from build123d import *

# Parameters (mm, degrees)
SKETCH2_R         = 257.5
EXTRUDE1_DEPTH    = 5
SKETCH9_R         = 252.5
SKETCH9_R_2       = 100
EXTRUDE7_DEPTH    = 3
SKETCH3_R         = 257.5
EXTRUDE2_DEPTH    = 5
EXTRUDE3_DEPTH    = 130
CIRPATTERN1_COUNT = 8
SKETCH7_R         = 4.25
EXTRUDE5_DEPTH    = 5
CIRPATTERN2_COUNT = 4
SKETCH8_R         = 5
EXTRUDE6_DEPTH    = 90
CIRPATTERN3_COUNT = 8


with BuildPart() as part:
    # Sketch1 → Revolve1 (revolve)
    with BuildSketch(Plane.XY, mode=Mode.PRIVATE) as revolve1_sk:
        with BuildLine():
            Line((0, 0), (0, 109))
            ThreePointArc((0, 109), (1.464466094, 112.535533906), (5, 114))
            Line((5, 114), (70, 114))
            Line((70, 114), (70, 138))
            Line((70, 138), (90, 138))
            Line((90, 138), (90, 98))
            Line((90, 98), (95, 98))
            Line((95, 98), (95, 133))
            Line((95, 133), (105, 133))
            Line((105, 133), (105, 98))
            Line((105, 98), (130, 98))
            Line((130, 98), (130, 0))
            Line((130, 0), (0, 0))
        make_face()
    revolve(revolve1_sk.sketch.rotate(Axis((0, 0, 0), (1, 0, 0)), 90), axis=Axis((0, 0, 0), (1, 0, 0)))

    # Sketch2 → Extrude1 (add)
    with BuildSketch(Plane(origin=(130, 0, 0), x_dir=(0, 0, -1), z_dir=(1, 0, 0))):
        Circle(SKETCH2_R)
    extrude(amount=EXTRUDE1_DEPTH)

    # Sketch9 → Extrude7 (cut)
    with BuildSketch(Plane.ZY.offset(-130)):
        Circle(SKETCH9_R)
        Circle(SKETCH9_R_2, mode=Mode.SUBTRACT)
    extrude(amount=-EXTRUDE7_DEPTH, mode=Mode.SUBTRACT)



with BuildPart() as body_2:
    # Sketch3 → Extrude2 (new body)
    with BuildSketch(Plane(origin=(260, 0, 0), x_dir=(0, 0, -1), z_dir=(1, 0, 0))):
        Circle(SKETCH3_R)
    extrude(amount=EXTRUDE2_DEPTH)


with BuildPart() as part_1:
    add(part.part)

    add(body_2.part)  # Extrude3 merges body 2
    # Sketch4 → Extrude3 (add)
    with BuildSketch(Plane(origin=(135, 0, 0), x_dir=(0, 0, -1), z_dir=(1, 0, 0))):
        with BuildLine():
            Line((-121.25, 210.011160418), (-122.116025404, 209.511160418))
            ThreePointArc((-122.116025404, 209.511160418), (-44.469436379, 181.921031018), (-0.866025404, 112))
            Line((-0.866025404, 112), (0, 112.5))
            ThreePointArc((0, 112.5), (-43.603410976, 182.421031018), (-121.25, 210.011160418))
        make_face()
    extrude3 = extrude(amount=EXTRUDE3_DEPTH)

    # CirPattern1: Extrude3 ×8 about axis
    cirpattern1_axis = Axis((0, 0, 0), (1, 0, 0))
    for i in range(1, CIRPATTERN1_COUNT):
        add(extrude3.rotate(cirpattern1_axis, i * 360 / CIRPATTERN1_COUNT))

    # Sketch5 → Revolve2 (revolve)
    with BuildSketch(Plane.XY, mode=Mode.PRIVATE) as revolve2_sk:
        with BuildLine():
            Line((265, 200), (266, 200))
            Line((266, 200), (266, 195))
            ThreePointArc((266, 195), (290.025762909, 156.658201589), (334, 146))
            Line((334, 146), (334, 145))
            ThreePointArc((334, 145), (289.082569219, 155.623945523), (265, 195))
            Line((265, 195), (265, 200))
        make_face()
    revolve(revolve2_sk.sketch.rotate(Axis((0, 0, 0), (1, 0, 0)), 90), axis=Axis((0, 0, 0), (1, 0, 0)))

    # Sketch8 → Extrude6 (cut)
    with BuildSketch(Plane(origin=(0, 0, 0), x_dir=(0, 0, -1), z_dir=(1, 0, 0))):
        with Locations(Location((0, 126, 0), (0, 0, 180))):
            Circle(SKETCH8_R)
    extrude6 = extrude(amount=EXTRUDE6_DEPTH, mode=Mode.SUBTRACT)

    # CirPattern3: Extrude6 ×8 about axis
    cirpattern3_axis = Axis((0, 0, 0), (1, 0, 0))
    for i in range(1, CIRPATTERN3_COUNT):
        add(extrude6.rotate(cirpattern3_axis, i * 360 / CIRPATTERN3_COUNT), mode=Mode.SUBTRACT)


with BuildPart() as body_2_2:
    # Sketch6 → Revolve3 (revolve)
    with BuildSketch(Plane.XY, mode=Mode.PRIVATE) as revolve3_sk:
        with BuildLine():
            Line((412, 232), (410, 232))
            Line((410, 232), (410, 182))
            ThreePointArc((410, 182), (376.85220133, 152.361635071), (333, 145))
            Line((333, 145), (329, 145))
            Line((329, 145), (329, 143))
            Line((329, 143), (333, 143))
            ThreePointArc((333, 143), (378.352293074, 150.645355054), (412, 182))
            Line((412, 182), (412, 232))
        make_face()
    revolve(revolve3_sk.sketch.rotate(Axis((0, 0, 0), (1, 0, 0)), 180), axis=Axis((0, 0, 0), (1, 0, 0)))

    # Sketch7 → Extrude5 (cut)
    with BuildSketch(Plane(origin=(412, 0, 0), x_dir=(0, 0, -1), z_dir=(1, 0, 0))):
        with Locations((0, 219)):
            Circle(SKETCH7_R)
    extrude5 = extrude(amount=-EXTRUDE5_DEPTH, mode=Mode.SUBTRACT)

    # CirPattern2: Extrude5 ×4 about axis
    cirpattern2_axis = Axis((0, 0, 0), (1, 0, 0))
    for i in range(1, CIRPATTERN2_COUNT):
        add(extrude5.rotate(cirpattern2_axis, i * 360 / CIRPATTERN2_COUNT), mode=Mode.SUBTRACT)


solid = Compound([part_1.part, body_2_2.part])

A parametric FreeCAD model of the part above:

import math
import FreeCAD as App
import Part
import Sketcher
Q = App.Units.Quantity

doc = App.newDocument("Part")
body = doc.addObject("PartDesign::Body", "Body")

# Sketch on XY plane
sketch1 = body.newObject("Sketcher::SketchObject", "Sketch")
sketch1.AttachmentSupport = (doc.getObject("XY_Plane"), [""])
sketch1.MapMode = "FlatFace"
sketch1.addGeometry([
    Part.LineSegment(App.Vector(0, 109, 0), App.Vector(0, 0, 0)),  # 0
    Part.LineSegment(App.Vector(0, 0, 0), App.Vector(130, 0, 0)),  # 1
    Part.LineSegment(App.Vector(130, 0, 0), App.Vector(130, 98, 0)),  # 2
    Part.LineSegment(App.Vector(130, 98, 0), App.Vector(105, 98, 0)),  # 3
    Part.LineSegment(App.Vector(105, 98, 0), App.Vector(105, 133, 0)),  # 4
    Part.LineSegment(App.Vector(105, 133, 0), App.Vector(95, 133, 0)),  # 5
    Part.LineSegment(App.Vector(95, 133, 0), App.Vector(95, 98, 0)),  # 6
    Part.LineSegment(App.Vector(95, 98, 0), App.Vector(90, 98, 0)),  # 7
    Part.LineSegment(App.Vector(90, 98, 0), App.Vector(90, 138, 0)),  # 8
    Part.LineSegment(App.Vector(90, 138, 0), App.Vector(70, 138, 0)),  # 9
    Part.LineSegment(App.Vector(70, 138, 0), App.Vector(70, 114, 0)),  # 10
    Part.LineSegment(App.Vector(70, 114, 0), App.Vector(5, 114, 0)),  # 11
    Part.ArcOfCircle(Part.Circle(App.Vector(5, 109, 0), App.Vector(0, 0, 1), 5), math.radians(90), math.radians(180)),  # 12
], False)
sketch1.addConstraint([
    Sketcher.Constraint("Coincident", 0, 2, 1, 1),
    Sketcher.Constraint("Coincident", 1, 2, 2, 1),
    Sketcher.Constraint("Coincident", 2, 2, 3, 1),
    Sketcher.Constraint("Coincident", 3, 2, 4, 1),
    Sketcher.Constraint("Coincident", 4, 2, 5, 1),
    Sketcher.Constraint("Coincident", 5, 2, 6, 1),
    Sketcher.Constraint("Coincident", 6, 2, 7, 1),
    Sketcher.Constraint("Coincident", 7, 2, 8, 1),
    Sketcher.Constraint("Coincident", 8, 2, 9, 1),
    Sketcher.Constraint("Coincident", 9, 2, 10, 1),
    Sketcher.Constraint("Coincident", 10, 2, 11, 1),
    Sketcher.Constraint("Tangent", 11, 2, 12, 1),
    Sketcher.Constraint("Tangent", 12, 2, 0, 1),
    Sketcher.Constraint("Vertical", 0),
    Sketcher.Constraint("Horizontal", 1),
    Sketcher.Constraint("Vertical", 2),
    Sketcher.Constraint("Horizontal", 3),
    Sketcher.Constraint("Vertical", 4),
    Sketcher.Constraint("Horizontal", 5),
    Sketcher.Constraint("Vertical", 6),
    Sketcher.Constraint("Horizontal", 7),
    Sketcher.Constraint("Vertical", 8),
    Sketcher.Constraint("Horizontal", 9),
    Sketcher.Constraint("Vertical", 10),
    Sketcher.Constraint("Horizontal", 11),
    Sketcher.Constraint("Coincident", 0, 2, -1, 1),
    Sketcher.Constraint("Horizontal", 3, 2, 6, 2),
    Sketcher.Constraint("Radius", 12, 5.0),
    Sketcher.Constraint("DistanceX", 1, 1, 1, 2, 130.0),
    Sketcher.Constraint("DistanceX", 3, 2, 3, 1, 25.0),
    Sketcher.Constraint("DistanceX", 5, 2, 5, 1, 10.0),
    Sketcher.Constraint("DistanceX", 7, 2, 7, 1, 5.0),
    Sketcher.Constraint("DistanceX", 9, 2, 9, 1, 20.0),
    Sketcher.Constraint("DistanceY", 0, 2, 0, 1, 109.0),
    Sketcher.Constraint("DistanceY", 2, 1, 2, 2, 98.0),
    Sketcher.Constraint("DistanceY", 4, 1, 4, 2, 35.0),
    Sketcher.Constraint("DistanceY", 8, 1, 8, 2, 40.0),
])
revolution = body.newObject("PartDesign::Revolution", "Revolution")
revolution.Profile = sketch1
revolution.ReferenceAxis = (sketch1, ["H_Axis"])
revolution.Angle = 360

# Sketch on YZ plane
sketch2 = body.newObject("Sketcher::SketchObject", "Sketch001")
sketch2.AttachmentSupport = (doc.getObject("YZ_Plane"), [""])
sketch2.MapMode = "FlatFace"
sketch2.AttachmentOffset = App.Placement(App.Vector(0, 0, 130), App.Rotation())
sketch2.addGeometry(Part.Circle(App.Vector(0, 0, 0), App.Vector(0, 0, 1), 258), False)
sketch2.addConstraint([
    Sketcher.Constraint("Coincident", 0, 3, -1, 1),
    Sketcher.Constraint("Diameter", 0, 515.0),
])
pad1 = body.newObject("PartDesign::Pad", "Pad")
pad1.Profile = sketch2
pad1.Length = 5

# Sketch on YZ plane
sketch3 = body.newObject("Sketcher::SketchObject", "Sketch002")
sketch3.AttachmentSupport = (doc.getObject("YZ_Plane"), [""])
sketch3.MapMode = "FlatFace"
sketch3.AttachmentOffset = App.Placement(App.Vector(0, 0, 130), App.Rotation())
sketch3.addGeometry([
    Part.Circle(App.Vector(0, 0, 0), App.Vector(0, 0, 1), 252),
    Part.Circle(App.Vector(0, 0, 0), App.Vector(0, 0, 1), 100),
], False)
sketch3.addConstraint([
    Sketcher.Constraint("Coincident", 0, 3, -1, 1),
    Sketcher.Constraint("Coincident", 1, 3, -1, 1),
    Sketcher.Constraint("Diameter", 0, 505.0),
    Sketcher.Constraint("Diameter", 1, 200.0),
])
pocket1 = body.newObject("PartDesign::Pocket", "Pocket")
pocket1.Profile = sketch3
pocket1.Length = 3
pocket1.Reversed = True
body2 = doc.addObject("PartDesign::Body", "Body001")

# Sketch on YZ plane
sketch4 = body2.newObject("Sketcher::SketchObject", "Sketch003")
sketch4.AttachmentSupport = (doc.getObject("YZ_Plane001"), [""])
sketch4.MapMode = "FlatFace"
sketch4.AttachmentOffset = App.Placement(App.Vector(0, 0, 260), App.Rotation())
sketch4.addGeometry(Part.Circle(App.Vector(0, 0, 0), App.Vector(0, 0, 1), 258), False)
sketch4.addConstraint([
    Sketcher.Constraint("Coincident", 0, 3, -1, 1),
    Sketcher.Constraint("Diameter", 0, 515.0),
])
pad2 = body2.newObject("PartDesign::Pad", "Pad001")
pad2.Profile = sketch4
pad2.Length = 5
body.AllowCompound = True
doc.recompute()

boolean = body.newObject("PartDesign::Boolean", "Boolean")
boolean.Type = "Fuse"
boolean.addObjects([body2])

# Sketch on YZ plane
sketch5 = body.newObject("Sketcher::SketchObject", "Sketch004")
sketch5.AttachmentSupport = (doc.getObject("YZ_Plane"), [""])
sketch5.MapMode = "FlatFace"
sketch5.AttachmentOffset = App.Placement(App.Vector(0, 0, 135), App.Rotation())
sketch5.addGeometry([
    Part.LineSegment(App.Vector(210, 121.2, 0), App.Vector(209.5, 122.1, 0)),
    Part.ArcOfCircle(Part.Circle(App.Vector(84.5, 122.8, 0), App.Vector(0, 0, 1), 125), math.radians(-77), math.radians(0)),
    Part.LineSegment(App.Vector(112, 0.9, 0), App.Vector(112.5, 0, 0)),
    Part.ArcOfCircle(Part.Circle(App.Vector(85, 121.9, 0), App.Vector(0, 0, 1), 125), math.radians(-77), math.radians(0)),
], False)
sketch5.addConstraint([
    Sketcher.Constraint("Coincident", 0, 2, 1, 2),
    Sketcher.Constraint("Coincident", 1, 1, 2, 1),
    Sketcher.Constraint("Coincident", 2, 2, 3, 1),
    Sketcher.Constraint("Coincident", 3, 2, 0, 1),
    Sketcher.Constraint("Equal", 1, 3),
    Sketcher.Constraint("PointOnObject", 2, 2, -1),
    Sketcher.Constraint("Parallel", 0, 2),
    Sketcher.Constraint("Equal", 0, 2),
    Sketcher.Constraint("Radius", 1, 125.0),
    Sketcher.Constraint("Angle", 0, Q("120 deg")),
    Sketcher.Constraint("Distance", 0, 1.0),
    Sketcher.Constraint("DistanceX", -1, 1, 1, 1, 112.0),
    Sketcher.Constraint("DistanceY", -1, 1, 3, 2, 121.25),
    Sketcher.Constraint("DistanceY", -1, 1, 3, 3, 121.94043),
])
pad3 = body.newObject("PartDesign::Pad", "Pad002")
pad3.Profile = sketch5
pad3.Length = 130
doc.recompute()

polarpattern = body.newObject("PartDesign::PolarPattern", "PolarPattern")
polarpattern.Originals = [pad3]
polarpattern.Axis = (doc.getObject("X_Axis"), [""])
polarpattern.Angle = 360
polarpattern.Occurrences = 8
body.Tip = polarpattern

# Sketch on XY plane
sketch6 = body.newObject("Sketcher::SketchObject", "Sketch005")
sketch6.AttachmentSupport = (doc.getObject("XY_Plane"), [""])
sketch6.MapMode = "FlatFace"
sketch6.addGeometry([
    Part.LineSegment(App.Vector(266, 200, 0), App.Vector(265, 200, 0)),  # 0
    Part.LineSegment(App.Vector(265, 200, 0), App.Vector(265, 195, 0)),  # 1
    Part.ArcOfCircle(Part.Circle(App.Vector(324.3, 204.2, 0), App.Vector(0, 0, 1), 60), math.radians(-171), math.radians(-81)),  # 2
    Part.LineSegment(App.Vector(334, 145, 0), App.Vector(334, 146, 0)),  # 3
    Part.ArcOfCircle(Part.Circle(App.Vector(325.1, 205.3, 0), App.Vector(0, 0, 1), 60), math.radians(-170), math.radians(-81)),  # 4
    Part.LineSegment(App.Vector(266, 195, 0), App.Vector(266, 200, 0)),  # 5
], False)
sketch6.addConstraint([
    Sketcher.Constraint("Coincident", 0, 2, 1, 1),
    Sketcher.Constraint("Coincident", 1, 2, 2, 1),
    Sketcher.Constraint("Coincident", 2, 2, 3, 1),
    Sketcher.Constraint("Coincident", 3, 2, 4, 2),
    Sketcher.Constraint("Coincident", 4, 1, 5, 1),
    Sketcher.Constraint("Coincident", 5, 2, 0, 1),
    Sketcher.Constraint("Horizontal", 0),
    Sketcher.Constraint("Vertical", 1),
    Sketcher.Constraint("Vertical", 3),
    Sketcher.Constraint("Vertical", 5),
    Sketcher.Constraint("Equal", 2, 4),
    Sketcher.Constraint("Horizontal", 1, 2, 4, 1),
    Sketcher.Constraint("Equal", 0, 3),
    Sketcher.Constraint("Radius", 2, 60.0),
    Sketcher.Constraint("DistanceX", 0, 2, 0, 1, 1.0),
    Sketcher.Constraint("DistanceY", 1, 2, 1, 1, 5.0),
    Sketcher.Constraint("DistanceX", -1, 1, 0, 2, 265.0),
    Sketcher.Constraint("DistanceY", -1, 1, 0, 2, 200.0),
    Sketcher.Constraint("DistanceX", -1, 1, 2, 2, 334.0),
    Sketcher.Constraint("DistanceY", -1, 1, 2, 2, 145.0),
])
revolution2 = body.newObject("PartDesign::Revolution", "Revolution001")
revolution2.Profile = sketch6
revolution2.ReferenceAxis = (sketch6, ["H_Axis"])
revolution2.Angle = 360

# Sketch on YZ plane
sketch7 = body.newObject("Sketcher::SketchObject", "Sketch006")
sketch7.AttachmentSupport = (doc.getObject("YZ_Plane"), [""])
sketch7.MapMode = "FlatFace"
sketch7.addGeometry(Part.Circle(App.Vector(126, 0, 0), App.Vector(0, 0, 1), 5), False)
sketch7.addConstraint([
    Sketcher.Constraint("PointOnObject", 0, 3, -1),
    Sketcher.Constraint("Diameter", 0, 10.0),
    Sketcher.Constraint("DistanceX", -1, 1, 0, 3, 126.0),
])
pocket2 = body.newObject("PartDesign::Pocket", "Pocket001")
pocket2.Profile = sketch7
pocket2.Length = 90
pocket2.Reversed = True
doc.recompute()

polarpattern2 = body.newObject("PartDesign::PolarPattern", "PolarPattern001")
polarpattern2.Originals = [pocket2]
polarpattern2.Axis = (doc.getObject("X_Axis"), [""])
polarpattern2.Angle = 360
polarpattern2.Occurrences = 8
body.Tip = polarpattern2
body3 = doc.addObject("PartDesign::Body", "Body002")

# Sketch on XY plane
sketch8 = body3.newObject("Sketcher::SketchObject", "Sketch007")
sketch8.AttachmentSupport = (doc.getObject("XY_Plane002"), [""])
sketch8.MapMode = "FlatFace"
sketch8.addGeometry([
    Part.LineSegment(App.Vector(412, 232, 0), App.Vector(410, 232, 0)),  # 0
    Part.LineSegment(App.Vector(410, 232, 0), App.Vector(410, 182, 0)),  # 1
    Part.ArcOfCircle(Part.Circle(App.Vector(342.2, 224.5, 0), App.Vector(0, 0, 1), 80), math.radians(-97), math.radians(-32)),  # 2
    Part.LineSegment(App.Vector(333, 145, 0), App.Vector(329, 145, 0)),  # 3
    Part.LineSegment(App.Vector(329, 145, 0), App.Vector(329, 143, 0)),  # 4
    Part.LineSegment(App.Vector(329, 143, 0), App.Vector(333, 143, 0)),  # 5
    Part.ArcOfCircle(Part.Circle(App.Vector(342.9, 222.4, 0), App.Vector(0, 0, 1), 80), math.radians(-97), math.radians(-30)),  # 6
    Part.LineSegment(App.Vector(412, 182, 0), App.Vector(412, 232, 0)),  # 7
], False)
sketch8.addConstraint([
    Sketcher.Constraint("Coincident", 0, 2, 1, 1),
    Sketcher.Constraint("Coincident", 1, 2, 2, 2),
    Sketcher.Constraint("Coincident", 2, 1, 3, 1),
    Sketcher.Constraint("Coincident", 3, 2, 4, 1),
    Sketcher.Constraint("Coincident", 4, 2, 5, 1),
    Sketcher.Constraint("Coincident", 5, 2, 6, 1),
    Sketcher.Constraint("Coincident", 6, 2, 7, 1),
    Sketcher.Constraint("Coincident", 7, 2, 0, 1),
    Sketcher.Constraint("Horizontal", 0),
    Sketcher.Constraint("Vertical", 1),
    Sketcher.Constraint("Horizontal", 3),
    Sketcher.Constraint("Vertical", 4),
    Sketcher.Constraint("Horizontal", 5),
    Sketcher.Constraint("Vertical", 7),
    Sketcher.Constraint("Equal", 2, 6),
    Sketcher.Constraint("Horizontal", 1, 2, 6, 2),
    Sketcher.Constraint("Vertical", 2, 1, 5, 2),
    Sketcher.Constraint("Equal", 0, 4),
    Sketcher.Constraint("Radius", 2, 80.0),
    Sketcher.Constraint("DistanceX", 0, 2, 0, 1, 2.0),
    Sketcher.Constraint("DistanceX", 3, 2, 3, 1, 4.0),
    Sketcher.Constraint("DistanceY", 1, 2, 1, 1, 50.0),
    Sketcher.Constraint("DistanceX", -1, 1, 0, 2, 410.0),
    Sketcher.Constraint("DistanceY", -1, 1, 0, 2, 232.0),
    Sketcher.Constraint("DistanceX", -1, 1, 2, 1, 333.0),
    Sketcher.Constraint("DistanceY", -1, 1, 2, 1, 145.0),
])
revolution3 = body3.newObject("PartDesign::Revolution", "Revolution002")
revolution3.Profile = sketch8
revolution3.ReferenceAxis = (sketch8, ["H_Axis"])
revolution3.Angle = 360

# Sketch on YZ plane
sketch9 = body3.newObject("Sketcher::SketchObject", "Sketch008")
sketch9.AttachmentSupport = (doc.getObject("YZ_Plane002"), [""])
sketch9.MapMode = "FlatFace"
sketch9.AttachmentOffset = App.Placement(App.Vector(0, 0, 412), App.Rotation())
sketch9.addGeometry(Part.Circle(App.Vector(219, 0, 0), App.Vector(0, 0, 1), 4.2), False)
sketch9.addConstraint([
    Sketcher.Constraint("PointOnObject", 0, 3, -1),
    Sketcher.Constraint("Diameter", 0, 8.5),
    Sketcher.Constraint("DistanceX", -1, 1, 0, 3, 219.0),
])
pocket3 = body3.newObject("PartDesign::Pocket", "Pocket002")
pocket3.Profile = sketch9
pocket3.Length = 5
doc.recompute()

polarpattern3 = body3.newObject("PartDesign::PolarPattern", "PolarPattern002")
polarpattern3.Originals = [pocket3]
polarpattern3.Axis = (doc.getObject("X_Axis002"), [""])
polarpattern3.Angle = 360
polarpattern3.Occurrences = 4
body3.Tip = polarpattern3

doc.recompute()
